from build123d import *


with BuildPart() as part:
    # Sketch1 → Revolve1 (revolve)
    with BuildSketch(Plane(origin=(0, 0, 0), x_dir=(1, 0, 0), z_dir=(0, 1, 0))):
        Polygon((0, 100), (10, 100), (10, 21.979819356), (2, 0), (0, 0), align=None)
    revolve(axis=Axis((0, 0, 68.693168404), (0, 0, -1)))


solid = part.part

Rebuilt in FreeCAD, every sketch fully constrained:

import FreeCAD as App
import Part
import Sketcher
Q = App.Units.Quantity

doc = App.newDocument("Part")
params = doc.addObject("Spreadsheet::Sheet", "Params")
for row, (alias, value) in enumerate([
    ("sketch1_width", "10 mm"),
    ("sketch1_width2", "2 mm"),
    ("sketch1_height", "100 mm"),
    ("revolution_angle", "360 deg"),
], start=1):
    params.set(f"A{row}", alias)
    params.set(f"B{row}", "=" + value)
    params.setAlias(f"B{row}", alias)

body = doc.addObject("PartDesign::Body", "Body")

# Sketch on XZ plane
sketch1 = body.newObject("Sketcher::SketchObject", "Sketch")
sketch1.AttachmentSupport = (doc.getObject("XZ_Plane"), [""])
sketch1.MapMode = "FlatFace"
sketch1.addGeometry([
    Part.LineSegment(App.Vector(10, -100, 0), App.Vector(0, -100, 0)),  # 0
    Part.LineSegment(App.Vector(0, -100, 0), App.Vector(0, 0, 0)),  # 1
    Part.LineSegment(App.Vector(0, 0, 0), App.Vector(2, 0, 0)),  # 2
    Part.LineSegment(App.Vector(2, 0, 0), App.Vector(10, -22, 0)),  # 3
    Part.LineSegment(App.Vector(10, -22, 0), App.Vector(10, -100, 0)),  # 4
], False)
sketch1.addConstraint([
    Sketcher.Constraint("Coincident", 0, 2, 1, 1),
    Sketcher.Constraint("Coincident", 1, 2, 2, 1),
    Sketcher.Constraint("Coincident", 2, 2, 3, 1),
    Sketcher.Constraint("Coincident", 3, 2, 4, 1),
    Sketcher.Constraint("Coincident", 4, 2, 0, 1),
    Sketcher.Constraint("Horizontal", 0),
    Sketcher.Constraint("Vertical", 1),
    Sketcher.Constraint("Horizontal", 2),
    Sketcher.Constraint("Vertical", 4),
    Sketcher.Constraint("Coincident", 1, 2, -1, 1),
    Sketcher.Constraint("DistanceX", 0, 2, 0, 1, 10.0),
    Sketcher.Constraint("DistanceX", 2, 1, 2, 2, 2.0),
    Sketcher.Constraint("DistanceY", 1, 1, 1, 2, 100.0),
    Sketcher.Constraint("Angle", 3, Q("-70 deg")),
])
sketch1.setExpression("Constraints[10]", "Params.sketch1_width")
sketch1.setExpression("Constraints[11]", "Params.sketch1_width2")
sketch1.setExpression("Constraints[12]", "Params.sketch1_height")
revolution = body.newObject("PartDesign::Revolution", "Revolution")
revolution.Profile = sketch1
revolution.ReferenceAxis = (sketch1, ["V_Axis"])
revolution.setExpression("Angle", "Params.revolution_angle")

doc.recompute()
